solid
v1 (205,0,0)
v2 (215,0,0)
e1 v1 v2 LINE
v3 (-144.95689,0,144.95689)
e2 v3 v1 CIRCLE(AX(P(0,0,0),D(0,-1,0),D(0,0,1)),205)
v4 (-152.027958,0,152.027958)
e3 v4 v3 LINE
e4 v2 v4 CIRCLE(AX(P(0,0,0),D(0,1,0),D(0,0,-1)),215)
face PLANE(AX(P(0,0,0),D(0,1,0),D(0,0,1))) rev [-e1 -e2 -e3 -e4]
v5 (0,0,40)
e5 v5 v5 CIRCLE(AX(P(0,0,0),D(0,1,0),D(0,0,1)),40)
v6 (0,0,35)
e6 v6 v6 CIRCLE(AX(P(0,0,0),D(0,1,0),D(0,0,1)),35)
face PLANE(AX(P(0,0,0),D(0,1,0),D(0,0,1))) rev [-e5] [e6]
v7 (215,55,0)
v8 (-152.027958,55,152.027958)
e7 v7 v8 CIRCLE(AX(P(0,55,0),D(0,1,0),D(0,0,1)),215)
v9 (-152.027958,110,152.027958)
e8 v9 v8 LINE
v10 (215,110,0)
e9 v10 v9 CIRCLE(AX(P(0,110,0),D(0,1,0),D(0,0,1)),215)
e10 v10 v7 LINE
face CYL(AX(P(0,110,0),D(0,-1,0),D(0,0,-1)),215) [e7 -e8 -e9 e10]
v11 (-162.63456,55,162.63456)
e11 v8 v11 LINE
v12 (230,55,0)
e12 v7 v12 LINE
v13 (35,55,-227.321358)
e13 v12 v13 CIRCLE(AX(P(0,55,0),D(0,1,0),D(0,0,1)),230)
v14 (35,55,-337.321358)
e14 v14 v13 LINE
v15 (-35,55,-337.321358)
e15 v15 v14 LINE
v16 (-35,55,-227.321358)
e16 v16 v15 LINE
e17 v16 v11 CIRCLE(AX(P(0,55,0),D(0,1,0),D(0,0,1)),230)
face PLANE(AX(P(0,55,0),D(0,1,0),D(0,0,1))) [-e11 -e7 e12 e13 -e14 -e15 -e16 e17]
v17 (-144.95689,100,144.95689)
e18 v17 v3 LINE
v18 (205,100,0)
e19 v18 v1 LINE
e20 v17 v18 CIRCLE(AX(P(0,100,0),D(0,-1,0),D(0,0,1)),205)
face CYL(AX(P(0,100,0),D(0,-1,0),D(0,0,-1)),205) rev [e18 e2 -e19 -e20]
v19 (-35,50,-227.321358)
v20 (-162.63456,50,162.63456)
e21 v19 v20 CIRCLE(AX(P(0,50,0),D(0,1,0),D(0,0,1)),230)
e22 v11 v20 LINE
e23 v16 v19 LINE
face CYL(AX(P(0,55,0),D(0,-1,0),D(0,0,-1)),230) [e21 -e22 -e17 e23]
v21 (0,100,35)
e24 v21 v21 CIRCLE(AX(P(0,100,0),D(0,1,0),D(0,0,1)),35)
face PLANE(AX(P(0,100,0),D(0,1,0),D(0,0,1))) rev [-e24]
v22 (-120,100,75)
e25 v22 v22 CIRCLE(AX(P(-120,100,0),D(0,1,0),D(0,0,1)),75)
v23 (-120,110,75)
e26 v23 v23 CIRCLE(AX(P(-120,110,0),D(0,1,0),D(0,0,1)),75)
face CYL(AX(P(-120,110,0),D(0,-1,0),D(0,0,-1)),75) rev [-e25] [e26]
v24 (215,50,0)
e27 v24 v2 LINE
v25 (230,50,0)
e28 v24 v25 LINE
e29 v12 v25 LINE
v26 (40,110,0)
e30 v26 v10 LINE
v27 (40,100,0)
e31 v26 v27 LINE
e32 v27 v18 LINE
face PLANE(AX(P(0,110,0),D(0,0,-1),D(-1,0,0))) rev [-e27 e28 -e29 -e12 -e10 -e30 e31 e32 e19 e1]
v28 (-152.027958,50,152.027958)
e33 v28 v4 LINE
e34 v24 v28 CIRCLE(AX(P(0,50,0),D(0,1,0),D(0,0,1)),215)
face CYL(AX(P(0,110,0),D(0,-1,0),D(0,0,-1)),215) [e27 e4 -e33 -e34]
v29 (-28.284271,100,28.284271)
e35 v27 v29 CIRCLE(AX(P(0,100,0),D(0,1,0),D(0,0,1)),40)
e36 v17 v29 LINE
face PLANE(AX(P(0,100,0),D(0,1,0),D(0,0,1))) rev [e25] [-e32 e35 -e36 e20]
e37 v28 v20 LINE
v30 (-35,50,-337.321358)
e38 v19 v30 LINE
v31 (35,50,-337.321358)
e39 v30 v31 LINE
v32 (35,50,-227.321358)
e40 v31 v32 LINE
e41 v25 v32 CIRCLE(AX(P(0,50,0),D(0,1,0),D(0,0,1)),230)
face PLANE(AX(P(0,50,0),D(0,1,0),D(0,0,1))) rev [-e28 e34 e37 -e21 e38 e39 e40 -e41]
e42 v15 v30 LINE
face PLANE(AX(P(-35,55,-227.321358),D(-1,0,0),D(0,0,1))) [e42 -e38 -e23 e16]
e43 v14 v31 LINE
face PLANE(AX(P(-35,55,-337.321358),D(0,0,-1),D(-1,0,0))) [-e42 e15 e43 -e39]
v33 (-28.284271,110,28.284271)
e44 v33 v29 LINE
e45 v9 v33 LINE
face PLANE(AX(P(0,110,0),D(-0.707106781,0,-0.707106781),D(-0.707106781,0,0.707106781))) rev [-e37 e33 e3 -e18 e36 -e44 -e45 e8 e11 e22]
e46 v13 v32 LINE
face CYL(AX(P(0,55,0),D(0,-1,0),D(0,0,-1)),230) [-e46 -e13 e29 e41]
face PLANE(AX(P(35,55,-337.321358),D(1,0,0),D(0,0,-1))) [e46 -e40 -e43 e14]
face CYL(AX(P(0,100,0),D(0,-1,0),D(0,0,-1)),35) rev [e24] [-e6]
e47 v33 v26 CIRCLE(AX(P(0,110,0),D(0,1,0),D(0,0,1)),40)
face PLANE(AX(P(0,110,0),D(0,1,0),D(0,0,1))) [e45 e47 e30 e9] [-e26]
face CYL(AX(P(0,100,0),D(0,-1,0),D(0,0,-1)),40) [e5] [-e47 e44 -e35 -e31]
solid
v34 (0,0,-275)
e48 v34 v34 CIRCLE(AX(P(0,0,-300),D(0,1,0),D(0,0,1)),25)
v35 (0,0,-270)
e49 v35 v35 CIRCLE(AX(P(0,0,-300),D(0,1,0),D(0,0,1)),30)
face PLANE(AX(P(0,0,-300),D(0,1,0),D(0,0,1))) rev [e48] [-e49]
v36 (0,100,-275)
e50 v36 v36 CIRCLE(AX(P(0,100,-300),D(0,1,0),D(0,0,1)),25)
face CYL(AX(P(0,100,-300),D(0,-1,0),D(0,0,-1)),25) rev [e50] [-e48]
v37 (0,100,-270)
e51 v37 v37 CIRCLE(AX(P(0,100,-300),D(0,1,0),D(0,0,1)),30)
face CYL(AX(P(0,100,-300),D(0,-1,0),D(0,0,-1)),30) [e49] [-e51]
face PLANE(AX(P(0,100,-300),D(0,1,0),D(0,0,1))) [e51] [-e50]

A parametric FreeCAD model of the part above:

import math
import FreeCAD as App
import Part
import Sketcher
from FreeCAD import Vector
Q = App.Units.Quantity

doc = App.newDocument("Part")
params = doc.addObject("Spreadsheet::Sheet", "Params")
for row, (alias, value) in enumerate([
    ("sketch1_diameter", "80 mm"),
    ("sketch1_diameter2", "70 mm"),
    ("pad1_length", "100 mm"),
    ("sketch2_diameter", "60 mm"),
    ("sketch2_diameter2", "50 mm"),
    ("pad2_length", "100 mm"),
    ("sketch3_radius", "215 mm"),
    ("sketch3_radius2", "204.999999 mm"),
    ("sketch3_length", "10 mm"),
    ("pad3_length", "100 mm"),
    ("sketch4_diameter", "150 mm"),
    ("sketch4_radius", "215 mm"),
    ("pad4_length", "10 mm"),
    ("sketch5_radius", "215 mm"),
    ("sketch5_radius2", "230 mm"),
    ("sketch5_width", "70 mm"),
    ("sketch5_height", "110 mm"),
    ("pad5_length", "5 mm"),
    ("sketch6_radius", "40 mm"),
    ("pad6_length", "10 mm"),
], start=1):
    params.set(f"A{row}", alias)
    params.set(f"B{row}", "=" + value)
    params.setAlias(f"B{row}", alias)

body = doc.addObject("PartDesign::Body", "Body")

# Sketch on XZ plane
sketch1 = body.newObject("Sketcher::SketchObject", "Sketch")
sketch1.AttachmentSupport = (doc.getObject("XZ_Plane"), [""])
sketch1.MapMode = "FlatFace"
sketch1.addGeometry([
    Part.Circle(Vector(0, 0, 0), Vector(0, 0, 1), 40),
    Part.Circle(Vector(0, 0, 0), Vector(0, 0, 1), 35),
], False)
sketch1.addConstraint([
    Sketcher.Constraint("Coincident", 0, 3, -1, 1),
    Sketcher.Constraint("Coincident", 1, 3, -1, 1),
    Sketcher.Constraint("Diameter", 0, Q("80 mm")),
    Sketcher.Constraint("Diameter", 1, Q("70 mm")),
])
sketch1.setExpression("Constraints[2]", "Params.sketch1_diameter")
sketch1.setExpression("Constraints[3]", "Params.sketch1_diameter2")
pad1 = body.newObject("PartDesign::Pad", "Pad")
pad1.Profile = sketch1
pad1.setExpression("Length", "Params.pad1_length")
pad1.Reversed = True
body2 = doc.addObject("PartDesign::Body", "Body001")

# Sketch on XZ plane
sketch2 = body2.newObject("Sketcher::SketchObject", "Sketch001")
sketch2.AttachmentSupport = (doc.getObject("XZ_Plane001"), [""])
sketch2.MapMode = "FlatFace"
sketch2.addGeometry([
    Part.Circle(Vector(0, -300, 0), Vector(0, 0, 1), 30),
    Part.Circle(Vector(0, -300, 0), Vector(0, 0, 1), 25),
], False)
sketch2.addConstraint([
    Sketcher.Constraint("Coincident", 1, 3, 0, 3),
    Sketcher.Constraint("PointOnObject", 0, 3, -2),
    Sketcher.Constraint("Diameter", 0, Q("60 mm")),
    Sketcher.Constraint("Diameter", 1, Q("50 mm")),
    Sketcher.Constraint("DistanceY", 0, 3, -1, 1, Q("300 mm")),
])
sketch2.setExpression("Constraints[2]", "Params.sketch2_diameter")
sketch2.setExpression("Constraints[3]", "Params.sketch2_diameter2")
pad2 = body2.newObject("PartDesign::Pad", "Pad001")
pad2.Profile = sketch2
pad2.setExpression("Length", "Params.pad2_length")
pad2.Reversed = True
body3 = doc.addObject("PartDesign::Body", "Body002")

# Sketch on XZ plane
sketch3 = body3.newObject("Sketcher::SketchObject", "Sketch002")
sketch3.AttachmentSupport = (doc.getObject("XZ_Plane002"), [""])
sketch3.MapMode = "FlatFace"
sketch3.addGeometry([
    Part.LineSegment(Vector(205, 0, 0), Vector(215, 0, 0)),  # 0
    Part.ArcOfCircle(Part.Circle(Vector(0, 0, 0), Vector(0, 0, 1), 215), math.radians(180), math.radians(360)),  # 1
    Part.ArcOfCircle(Part.Circle(Vector(0, 0, 0), Vector(0, 0, 1), 215), math.radians(135), math.radians(180)),  # 2
    Part.LineSegment(Vector(-152, 152, 0), Vector(-145, 145, 0)),  # 3
    Part.ArcOfCircle(Part.Circle(Vector(0, 0, 0), Vector(0, 0, 1), 205), math.radians(135), math.radians(180)),  # 4
    Part.ArcOfCircle(Part.Circle(Vector(0, 0, 0), Vector(0, 0, 1), 205), math.radians(180), math.radians(360)),  # 5
], False)
sketch3.addConstraint([
    Sketcher.Constraint("Coincident", 0, 2, 1, 2),
    Sketcher.Constraint("Tangent", 1, 1, 2, 2),
    Sketcher.Constraint("Coincident", 2, 1, 3, 1),
    Sketcher.Constraint("Coincident", 3, 2, 4, 1),
    Sketcher.Constraint("Tangent", 4, 2, 5, 1),
    Sketcher.Constraint("Coincident", 5, 2, 0, 1),
    Sketcher.Constraint("Horizontal", 0),
    Sketcher.Constraint("Coincident", 1, 3, -1, 1),
    Sketcher.Constraint("Coincident", 4, 3, -1, 1),
    Sketcher.Constraint("Equal", 4, 5),
    Sketcher.Constraint("PointOnObject", 0, 2, -1),
    Sketcher.Constraint("PointOnObject", 1, 1, -1),
    Sketcher.Constraint("PointOnObject", 4, 2, -1),
    Sketcher.Constraint("Radius", 1, Q("215 mm")),
    Sketcher.Constraint("Radius", 4, Q("204.999999 mm")),
    Sketcher.Constraint("Angle", 3, Q("-45 deg")),
    Sketcher.Constraint("Distance", 3, Q("10 mm")),
    Sketcher.Constraint("DistanceX", 3, 2, -1, 1, Q("144.95689 mm")),
])
sketch3.setExpression("Constraints[13]", "Params.sketch3_radius")
sketch3.setExpression("Constraints[14]", "Params.sketch3_radius2")
sketch3.setExpression("Constraints[16]", "Params.sketch3_length")
pad3 = body3.newObject("PartDesign::Pad", "Pad002")
pad3.Profile = sketch3
pad3.setExpression("Length", "Params.pad3_length")
pad3.Reversed = True
body.AllowCompound = True
doc.recompute()

boolean = body.newObject("PartDesign::Boolean", "Boolean")
boolean.Type = "Fuse"
boolean.addObjects([body3])

# Sketch on XZ plane
sketch4 = body.newObject("Sketcher::SketchObject", "Sketch003")
sketch4.AttachmentSupport = (doc.getObject("XZ_Plane"), [""])
sketch4.MapMode = "FlatFace"
sketch4.AttachmentOffset = App.Placement(Vector(0, 0, -100), App.Rotation())
sketch4.addGeometry([
    Part.LineSegment(Vector(-152, 152, 0), Vector(0, 0, 0)),
    Part.LineSegment(Vector(0, 0, 0), Vector(215, 0, 0)),
    Part.ArcOfCircle(Part.Circle(Vector(0, 0, 0), Vector(0, 0, 1), 215), math.radians(135), math.radians(360)),
    Part.Circle(Vector(-120, 0, 0), Vector(0, 0, 1), 75),
], False)
sketch4.addConstraint([
    Sketcher.Constraint("Coincident", 0, 2, 1, 1),
    Sketcher.Constraint("Coincident", 1, 2, 2, 2),
    Sketcher.Constraint("Coincident", 2, 1, 0, 1),
    Sketcher.Constraint("Horizontal", 1),
    Sketcher.Constraint("Coincident", 2, 3, -1, 1),
    Sketcher.Constraint("Coincident", 0, 2, -1, 1),
    Sketcher.Constraint("PointOnObject", 3, 3, -1),
    Sketcher.Constraint("Diameter", 3, Q("150 mm")),
    Sketcher.Constraint("Radius", 2, Q("215 mm")),
    Sketcher.Constraint("Angle", 0, Q("-45 deg")),
    Sketcher.Constraint("DistanceX", 3, 3, -1, 1, Q("120 mm")),
])
sketch4.setExpression("Constraints[7]", "Params.sketch4_diameter")
sketch4.setExpression("Constraints[8]", "Params.sketch4_radius")
pad4 = body.newObject("PartDesign::Pad", "Pad003")
pad4.Profile = sketch4
pad4.setExpression("Length", "Params.pad4_length")
pad4.Reversed = True

# Sketch on XZ plane
sketch5 = body.newObject("Sketcher::SketchObject", "Sketch004")
sketch5.AttachmentSupport = (doc.getObject("XZ_Plane"), [""])
sketch5.MapMode = "FlatFace"
sketch5.AttachmentOffset = App.Placement(Vector(0, 0, -50), App.Rotation())
sketch5.addGeometry([
    Part.ArcOfCircle(Part.Circle(Vector(0, 0, 0), Vector(0, 0, 1), 215), math.radians(135), math.radians(360)),  # 0
    Part.LineSegment(Vector(215, 0, 0), Vector(230, 0, 0)),  # 1
    Part.ArcOfCircle(Part.Circle(Vector(0, 0, 0), Vector(0, 0, 1), 230), math.radians(-81), math.radians(0)),  # 2
    Part.LineSegment(Vector(35, -227, 0), Vector(35, -337, 0)),  # 3
    Part.LineSegment(Vector(35, -337, 0), Vector(-35, -337, 0)),  # 4
    Part.LineSegment(Vector(-35, -337, 0), Vector(-35, -227, 0)),  # 5
    Part.ArcOfCircle(Part.Circle(Vector(0, 0, 0), Vector(0, 0, 1), 230), math.radians(135), math.radians(261)),  # 6
    Part.LineSegment(Vector(-163, 163, 0), Vector(-152, 152, 0)),  # 7
], False)
sketch5.addConstraint([
    Sketcher.Constraint("Coincident", 0, 2, 1, 1),
    Sketcher.Constraint("Coincident", 1, 2, 2, 2),
    Sketcher.Constraint("Coincident", 2, 1, 3, 1),
    Sketcher.Constraint("Coincident", 3, 2, 4, 1),
    Sketcher.Constraint("Coincident", 4, 2, 5, 1),
    Sketcher.Constraint("Coincident", 5, 2, 6, 2),
    Sketcher.Constraint("Coincident", 6, 1, 7, 1),
    Sketcher.Constraint("Coincident", 7, 2, 0, 1),
    Sketcher.Constraint("Horizontal", 1),
    Sketcher.Constraint("Vertical", 3),
    Sketcher.Constraint("Horizontal", 4),
    Sketcher.Constraint("Vertical", 5),
    Sketcher.Constraint("Coincident", 0, 3, -1, 1),
    Sketcher.Constraint("Coincident", 2, 3, -1, 1),
    Sketcher.Constraint("Coincident", 6, 3, -1, 1),
    Sketcher.Constraint("Equal", 2, 6),
    Sketcher.Constraint("PointOnObject", 0, 2, -1),
    Sketcher.Constraint("Horizontal", 2, 1, 5, 2),
    Sketcher.Constraint("Radius", 0, Q("215 mm")),
    Sketcher.Constraint("Radius", 2, Q("230 mm")),
    Sketcher.Constraint("DistanceX", 4, 2, 4, 1, Q("70 mm")),
    Sketcher.Constraint("DistanceY", 3, 2, 3, 1, Q("110 mm")),
    Sketcher.Constraint("Angle", 7, Q("-45 deg")),
    Sketcher.Constraint("DistanceX", 6, 1, -1, 1, Q("162.63456 mm")),
])
sketch5.setExpression("Constraints[18]", "Params.sketch5_radius")
sketch5.setExpression("Constraints[19]", "Params.sketch5_radius2")
sketch5.setExpression("Constraints[20]", "Params.sketch5_width")
sketch5.setExpression("Constraints[21]", "Params.sketch5_height")
pad5 = body.newObject("PartDesign::Pad", "Pad004")
pad5.Profile = sketch5
pad5.setExpression("Length", "Params.pad5_length")
pad5.Reversed = True

# Sketch on XZ plane
sketch6 = body.newObject("Sketcher::SketchObject", "Sketch005")
sketch6.AttachmentSupport = (doc.getObject("XZ_Plane"), [""])
sketch6.MapMode = "FlatFace"
sketch6.AttachmentOffset = App.Placement(Vector(0, 0, -100), App.Rotation())
sketch6.addGeometry([
    Part.ArcOfCircle(Part.Circle(Vector(0, 0, 0), Vector(0, 0, 1), 40), math.radians(0), math.radians(135)),
    Part.LineSegment(Vector(40, 0, 0), Vector(0, 0, 0)),
    Part.LineSegment(Vector(0, 0, 0), Vector(-28, 28, 0)),
], False)
sketch6.addConstraint([
    Sketcher.Constraint("Coincident", 0, 1, 1, 1),
    Sketcher.Constraint("Coincident", 1, 2, 2, 1),
    Sketcher.Constraint("Coincident", 2, 2, 0, 2),
    Sketcher.Constraint("Horizontal", 1),
    Sketcher.Constraint("Coincident", 0, 3, -1, 1),
    Sketcher.Constraint("Coincident", 1, 2, -1, 1),
    Sketcher.Constraint("Radius", 0, Q("40 mm")),
    Sketcher.Constraint("Angle", 2, Q("135 deg")),
])
sketch6.setExpression("Constraints[6]", "Params.sketch6_radius")
pad6 = body.newObject("PartDesign::Pad", "Pad005")
pad6.Profile = sketch6
pad6.setExpression("Length", "Params.pad6_length")
pad6.Reversed = True

doc.recompute()
